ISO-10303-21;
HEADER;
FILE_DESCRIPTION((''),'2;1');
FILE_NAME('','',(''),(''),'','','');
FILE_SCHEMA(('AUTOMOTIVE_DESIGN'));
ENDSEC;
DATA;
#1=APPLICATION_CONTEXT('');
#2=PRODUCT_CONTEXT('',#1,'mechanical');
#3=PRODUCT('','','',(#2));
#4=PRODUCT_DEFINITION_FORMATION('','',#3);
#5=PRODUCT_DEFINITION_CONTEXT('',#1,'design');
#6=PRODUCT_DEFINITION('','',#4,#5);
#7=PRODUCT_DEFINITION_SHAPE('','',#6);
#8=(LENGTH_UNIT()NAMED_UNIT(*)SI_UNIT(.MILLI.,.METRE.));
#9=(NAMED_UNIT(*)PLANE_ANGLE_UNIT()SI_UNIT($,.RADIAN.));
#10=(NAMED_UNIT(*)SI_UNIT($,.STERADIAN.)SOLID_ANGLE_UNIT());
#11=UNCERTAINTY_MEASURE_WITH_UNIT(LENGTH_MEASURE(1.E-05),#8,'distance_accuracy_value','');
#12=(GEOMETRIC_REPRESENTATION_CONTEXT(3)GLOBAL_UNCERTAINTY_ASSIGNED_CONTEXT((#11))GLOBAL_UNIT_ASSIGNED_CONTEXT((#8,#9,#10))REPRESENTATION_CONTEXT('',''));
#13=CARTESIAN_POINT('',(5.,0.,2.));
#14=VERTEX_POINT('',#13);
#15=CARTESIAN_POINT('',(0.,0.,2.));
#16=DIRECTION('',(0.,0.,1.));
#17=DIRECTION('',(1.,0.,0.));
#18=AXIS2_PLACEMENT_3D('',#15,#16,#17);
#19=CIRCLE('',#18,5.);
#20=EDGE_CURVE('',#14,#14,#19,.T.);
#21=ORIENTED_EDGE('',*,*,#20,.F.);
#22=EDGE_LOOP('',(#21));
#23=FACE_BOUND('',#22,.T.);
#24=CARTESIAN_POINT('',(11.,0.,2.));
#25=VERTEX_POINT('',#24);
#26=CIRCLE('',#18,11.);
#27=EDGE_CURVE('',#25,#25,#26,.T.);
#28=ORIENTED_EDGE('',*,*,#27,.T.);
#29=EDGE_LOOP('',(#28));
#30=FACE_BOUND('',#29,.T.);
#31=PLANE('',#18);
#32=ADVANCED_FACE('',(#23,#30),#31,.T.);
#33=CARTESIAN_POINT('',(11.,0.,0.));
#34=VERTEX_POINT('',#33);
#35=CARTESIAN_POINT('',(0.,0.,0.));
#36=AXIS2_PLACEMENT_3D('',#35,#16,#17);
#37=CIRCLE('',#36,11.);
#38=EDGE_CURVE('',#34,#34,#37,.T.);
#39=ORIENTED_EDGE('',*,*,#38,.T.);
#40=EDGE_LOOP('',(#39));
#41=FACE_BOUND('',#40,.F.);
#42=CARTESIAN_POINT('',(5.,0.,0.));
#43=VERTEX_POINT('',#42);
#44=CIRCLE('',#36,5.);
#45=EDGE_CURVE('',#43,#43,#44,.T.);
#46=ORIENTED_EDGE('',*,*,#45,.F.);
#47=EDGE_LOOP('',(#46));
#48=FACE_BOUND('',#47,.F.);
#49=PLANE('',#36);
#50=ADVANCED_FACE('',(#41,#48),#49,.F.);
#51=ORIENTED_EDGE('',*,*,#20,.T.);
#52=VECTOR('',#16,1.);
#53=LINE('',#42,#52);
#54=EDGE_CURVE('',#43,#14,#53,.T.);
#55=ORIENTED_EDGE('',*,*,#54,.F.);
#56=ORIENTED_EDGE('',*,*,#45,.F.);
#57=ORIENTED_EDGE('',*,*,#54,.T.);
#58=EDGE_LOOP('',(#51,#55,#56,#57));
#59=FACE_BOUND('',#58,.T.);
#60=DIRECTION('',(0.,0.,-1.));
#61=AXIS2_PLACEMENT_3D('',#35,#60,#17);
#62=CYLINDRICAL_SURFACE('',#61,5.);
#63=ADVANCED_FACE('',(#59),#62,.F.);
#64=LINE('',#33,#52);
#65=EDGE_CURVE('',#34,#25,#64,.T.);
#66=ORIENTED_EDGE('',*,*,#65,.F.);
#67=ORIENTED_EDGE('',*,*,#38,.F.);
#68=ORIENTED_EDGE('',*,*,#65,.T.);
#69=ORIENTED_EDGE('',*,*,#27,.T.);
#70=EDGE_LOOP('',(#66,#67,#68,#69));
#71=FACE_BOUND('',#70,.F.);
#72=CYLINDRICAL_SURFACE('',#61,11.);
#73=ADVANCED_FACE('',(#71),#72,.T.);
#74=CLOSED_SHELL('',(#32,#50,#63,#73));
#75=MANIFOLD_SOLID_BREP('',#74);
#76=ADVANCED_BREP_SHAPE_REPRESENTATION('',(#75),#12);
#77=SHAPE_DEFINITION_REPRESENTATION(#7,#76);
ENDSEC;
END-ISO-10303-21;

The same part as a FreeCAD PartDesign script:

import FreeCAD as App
import Part
import Sketcher

V = App.Vector

doc = App.newDocument("Part")
body = doc.addObject("PartDesign::Body", "Body")

# Sketch on XY plane
sketch1 = body.newObject("Sketcher::SketchObject", "Sketch")
sketch1.AttachmentSupport = (doc.getObject("XY_Plane"), [""])
sketch1.MapMode = "FlatFace"
sketch1.addGeometry([
    Part.Circle(V(0, 0, 0), V(0, 0, 1), 11),
    Part.Circle(V(0, 0, 0), V(0, 0, 1), 5),
], False)
sketch1.addConstraint([
    Sketcher.Constraint("Coincident", 0, 3, -1, 1),
    Sketcher.Constraint("Coincident", 1, 3, -1, 1),
    Sketcher.Constraint("Diameter", 0, 22.0),
    Sketcher.Constraint("Diameter", 1, 10.0),
])
pad1 = body.newObject("PartDesign::Pad", "Pad")
pad1.Profile = sketch1
pad1.Length = 2

doc.recompute()
